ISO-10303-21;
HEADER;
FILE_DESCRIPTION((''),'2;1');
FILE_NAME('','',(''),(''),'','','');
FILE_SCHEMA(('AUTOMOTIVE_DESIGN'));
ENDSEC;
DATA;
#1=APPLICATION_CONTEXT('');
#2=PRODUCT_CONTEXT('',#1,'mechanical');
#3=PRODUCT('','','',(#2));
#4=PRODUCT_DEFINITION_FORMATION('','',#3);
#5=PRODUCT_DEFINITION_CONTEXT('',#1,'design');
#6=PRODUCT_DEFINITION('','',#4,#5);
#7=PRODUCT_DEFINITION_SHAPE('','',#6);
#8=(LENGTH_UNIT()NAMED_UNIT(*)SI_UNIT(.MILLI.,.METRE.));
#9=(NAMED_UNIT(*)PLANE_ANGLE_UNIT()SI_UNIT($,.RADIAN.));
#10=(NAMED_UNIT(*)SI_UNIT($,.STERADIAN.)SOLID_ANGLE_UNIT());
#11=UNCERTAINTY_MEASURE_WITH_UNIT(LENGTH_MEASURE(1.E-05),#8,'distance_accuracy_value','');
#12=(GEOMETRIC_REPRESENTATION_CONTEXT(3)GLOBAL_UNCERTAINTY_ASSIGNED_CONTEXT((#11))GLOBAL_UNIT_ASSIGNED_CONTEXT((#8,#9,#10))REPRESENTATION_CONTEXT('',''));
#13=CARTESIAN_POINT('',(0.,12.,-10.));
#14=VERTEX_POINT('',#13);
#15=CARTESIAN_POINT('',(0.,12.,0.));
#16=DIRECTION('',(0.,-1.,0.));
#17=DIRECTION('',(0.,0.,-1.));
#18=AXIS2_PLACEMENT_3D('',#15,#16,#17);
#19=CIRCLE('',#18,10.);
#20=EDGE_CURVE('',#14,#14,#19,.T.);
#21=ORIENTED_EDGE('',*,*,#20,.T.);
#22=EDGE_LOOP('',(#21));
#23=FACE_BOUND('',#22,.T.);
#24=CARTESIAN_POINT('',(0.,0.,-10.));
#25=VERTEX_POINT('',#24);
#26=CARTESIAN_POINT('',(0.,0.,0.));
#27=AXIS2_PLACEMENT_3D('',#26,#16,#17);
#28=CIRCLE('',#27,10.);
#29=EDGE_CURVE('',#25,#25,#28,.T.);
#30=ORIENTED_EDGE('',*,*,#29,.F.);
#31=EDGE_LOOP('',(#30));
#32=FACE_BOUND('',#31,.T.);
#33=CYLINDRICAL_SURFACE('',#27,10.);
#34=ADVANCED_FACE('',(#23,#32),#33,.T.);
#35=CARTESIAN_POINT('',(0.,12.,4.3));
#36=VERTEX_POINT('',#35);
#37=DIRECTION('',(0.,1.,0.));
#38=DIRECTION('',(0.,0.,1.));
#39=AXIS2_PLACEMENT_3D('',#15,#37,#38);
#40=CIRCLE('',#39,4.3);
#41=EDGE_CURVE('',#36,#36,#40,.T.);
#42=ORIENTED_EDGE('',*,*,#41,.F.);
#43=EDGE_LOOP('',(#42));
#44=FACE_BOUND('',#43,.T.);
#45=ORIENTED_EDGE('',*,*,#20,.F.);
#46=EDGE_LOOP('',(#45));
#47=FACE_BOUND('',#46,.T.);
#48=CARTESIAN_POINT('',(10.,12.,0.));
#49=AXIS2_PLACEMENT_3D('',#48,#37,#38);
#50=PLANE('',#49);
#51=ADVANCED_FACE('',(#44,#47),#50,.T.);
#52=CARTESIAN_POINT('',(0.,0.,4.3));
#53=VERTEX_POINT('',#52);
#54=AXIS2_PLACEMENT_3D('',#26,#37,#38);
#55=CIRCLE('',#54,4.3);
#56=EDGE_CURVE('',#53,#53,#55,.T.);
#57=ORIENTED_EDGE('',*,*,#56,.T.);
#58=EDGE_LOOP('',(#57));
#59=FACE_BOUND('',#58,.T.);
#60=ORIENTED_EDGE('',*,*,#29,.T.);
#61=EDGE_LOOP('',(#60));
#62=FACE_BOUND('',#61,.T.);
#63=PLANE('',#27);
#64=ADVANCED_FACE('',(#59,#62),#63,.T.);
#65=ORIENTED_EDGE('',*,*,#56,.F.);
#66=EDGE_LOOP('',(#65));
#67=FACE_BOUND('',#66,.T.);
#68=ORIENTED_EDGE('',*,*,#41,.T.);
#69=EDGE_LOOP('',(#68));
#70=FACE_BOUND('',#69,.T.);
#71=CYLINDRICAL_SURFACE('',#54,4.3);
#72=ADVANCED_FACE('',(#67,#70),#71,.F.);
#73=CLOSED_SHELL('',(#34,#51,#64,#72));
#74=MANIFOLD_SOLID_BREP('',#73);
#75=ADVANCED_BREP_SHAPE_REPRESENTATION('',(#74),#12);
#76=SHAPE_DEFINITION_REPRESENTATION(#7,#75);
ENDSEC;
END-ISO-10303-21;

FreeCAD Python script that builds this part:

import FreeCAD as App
import Part
import Sketcher
from FreeCAD import Vector
Q = App.Units.Quantity


def add_polygon(sketch, points):
    """Adds a closed chain of lines whose ends are joined by coincident constraints."""
    first, n = sketch.GeometryCount, len(points)
    for a, b in zip(points, points[1:] + points[:1]):
        sketch.addGeometry(Part.LineSegment(App.Vector(*a, 0), App.Vector(*b, 0)), False)
    for i in range(n):
        sketch.addConstraint(Sketcher.Constraint("Coincident", first + i, 2, first + (i + 1) % n, 1))

doc = App.newDocument("Part")
body = doc.addObject("PartDesign::Body", "Body")

sketch1 = body.newObject("Sketcher::SketchObject", "Sketch")
sketch1.AttachmentSupport = (doc.getObject("XY_Plane"), [""])
sketch1.MapMode = "FlatFace"
add_polygon(sketch1, [(0, 12), (0, 0), (10, 0), (10, 12)])
sketch1.addConstraint([
    Sketcher.Constraint("Vertical", 0),
    Sketcher.Constraint("Horizontal", 1),
    Sketcher.Constraint("Vertical", 2),
    Sketcher.Constraint("Horizontal", 3),
    Sketcher.Constraint("Coincident", 0, 2, -1, 1),
    Sketcher.Constraint("DistanceX", 1, 1, 1, 2, Q("10 mm")),
    Sketcher.Constraint("DistanceY", 0, 2, 0, 1, Q("12 mm")),
])
revolution = body.newObject("PartDesign::Revolution", "Revolution")
revolution.Profile = sketch1
revolution.ReferenceAxis = (sketch1, ["V_Axis"])
revolution.Angle = 360

sketch2 = body.newObject("Sketcher::SketchObject", "Sketch001")
sketch2.AttachmentSupport = (doc.getObject("XZ_Plane"), [""])
sketch2.MapMode = "FlatFace"
sketch2.AttachmentOffset = App.Placement(Vector(0, 0, -12), App.Rotation())
sketch2.addGeometry(Part.Circle(Vector(0, 0, 0), Vector(0, 0, 1), 4.3), False)
sketch2.addConstraint([
    Sketcher.Constraint("Coincident", 0, 3, -1, 1),
    Sketcher.Constraint("Diameter", 0, Q("8.6 mm")),
])
pocket1 = body.newObject("PartDesign::Pocket", "Pocket")
pocket1.Profile = sketch2
pocket1.Type = "ThroughAll"
pocket1.Reversed = True

doc.recompute()
